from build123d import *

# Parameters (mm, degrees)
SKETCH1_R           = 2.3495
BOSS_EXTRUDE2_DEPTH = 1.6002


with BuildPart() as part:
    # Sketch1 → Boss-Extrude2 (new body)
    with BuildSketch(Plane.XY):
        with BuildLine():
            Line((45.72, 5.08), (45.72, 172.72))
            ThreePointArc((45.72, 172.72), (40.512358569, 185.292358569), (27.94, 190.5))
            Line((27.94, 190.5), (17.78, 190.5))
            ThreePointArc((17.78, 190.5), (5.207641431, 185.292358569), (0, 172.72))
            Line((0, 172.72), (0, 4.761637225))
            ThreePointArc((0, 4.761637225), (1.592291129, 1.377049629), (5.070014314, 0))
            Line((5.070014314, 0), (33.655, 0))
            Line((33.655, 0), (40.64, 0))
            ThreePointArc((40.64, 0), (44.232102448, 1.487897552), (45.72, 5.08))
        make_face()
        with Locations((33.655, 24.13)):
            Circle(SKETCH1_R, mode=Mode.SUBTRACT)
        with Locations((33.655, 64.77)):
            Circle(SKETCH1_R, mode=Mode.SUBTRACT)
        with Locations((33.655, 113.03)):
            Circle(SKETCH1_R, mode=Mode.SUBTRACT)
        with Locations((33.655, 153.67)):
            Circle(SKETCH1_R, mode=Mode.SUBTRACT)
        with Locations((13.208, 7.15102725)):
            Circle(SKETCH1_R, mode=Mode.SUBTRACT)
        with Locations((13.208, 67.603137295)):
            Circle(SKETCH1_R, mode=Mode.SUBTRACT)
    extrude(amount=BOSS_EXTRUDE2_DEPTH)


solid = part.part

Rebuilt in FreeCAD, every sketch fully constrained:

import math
import FreeCAD as App
import Part
import Sketcher
Q = App.Units.Quantity

doc = App.newDocument("Part")
body = doc.addObject("PartDesign::Body", "Body")

sketch1 = body.newObject("Sketcher::SketchObject", "Sketch")
sketch1.AttachmentSupport = (doc.getObject("XY_Plane"), [""])
sketch1.MapMode = "FlatFace"
sketch1.addGeometry([
    Part.LineSegment(App.Vector(45.7, 5.1, 0), App.Vector(45.7, 172.7, 0)),
    Part.ArcOfCircle(Part.Circle(App.Vector(27.9, 172.7, 0), App.Vector(0, 0, 1), 17.8), math.radians(0), math.radians(90)),
    Part.LineSegment(App.Vector(27.9, 190.5, 0), App.Vector(17.8, 190.5, 0)),
    Part.ArcOfCircle(Part.Circle(App.Vector(17.8, 172.7, 0), App.Vector(0, 0, 1), 17.8), math.radians(90), math.radians(180)),
    Part.LineSegment(App.Vector(0, 172.7, 0), App.Vector(0, 4.8, 0)),
    Part.ArcOfCircle(Part.Circle(App.Vector(5.1, 5.1, 0), App.Vector(0, 0, 1), 5.1), math.radians(-176), math.radians(-90)),
    Part.LineSegment(App.Vector(5.1, 0, 0), App.Vector(40.6, 0, 0)),
    Part.ArcOfCircle(Part.Circle(App.Vector(40.6, 5.1, 0), App.Vector(0, 0, 1), 5.1), math.radians(-90), math.radians(0)),
    Part.Circle(App.Vector(13.2, 7.2, 0), App.Vector(0, 0, 1), 2.3),
    Part.Circle(App.Vector(13.2, 67.6, 0), App.Vector(0, 0, 1), 2.3),
    Part.Circle(App.Vector(33.7, 24.1, 0), App.Vector(0, 0, 1), 2.3),
    Part.Circle(App.Vector(33.7, 64.8, 0), App.Vector(0, 0, 1), 2.3),
    Part.Circle(App.Vector(33.7, 113, 0), App.Vector(0, 0, 1), 2.3),
    Part.Circle(App.Vector(33.7, 153.7, 0), App.Vector(0, 0, 1), 2.3),
], False)
sketch1.addConstraint([
    Sketcher.Constraint("Tangent", 0, 2, 1, 1),
    Sketcher.Constraint("Tangent", 1, 2, 2, 1),
    Sketcher.Constraint("Tangent", 2, 2, 3, 1),
    Sketcher.Constraint("Tangent", 3, 2, 4, 1),
    Sketcher.Constraint("Coincident", 4, 2, 5, 1),
    Sketcher.Constraint("Tangent", 5, 2, 6, 1),
    Sketcher.Constraint("Tangent", 6, 2, 7, 1),
    Sketcher.Constraint("Tangent", 7, 2, 0, 1),
    Sketcher.Constraint("Vertical", 0),
    Sketcher.Constraint("Horizontal", 2),
    Sketcher.Constraint("Vertical", 4),
    Sketcher.Constraint("Horizontal", 6),
    Sketcher.Constraint("Equal", 1, 3),
    Sketcher.Constraint("Equal", 5, 7),
    Sketcher.Constraint("Equal", 8, 9),
    Sketcher.Constraint("Equal", 9, 10),
    Sketcher.Constraint("Equal", 10, 11),
    Sketcher.Constraint("Equal", 11, 12),
    Sketcher.Constraint("Equal", 12, 13),
    Sketcher.Constraint("PointOnObject", 3, 2, -2),
    Sketcher.Constraint("PointOnObject", 5, 2, -1),
    Sketcher.Constraint("Vertical", 8, 3, 9, 3),
    Sketcher.Constraint("Vertical", 10, 3, 11, 3),
    Sketcher.Constraint("Vertical", 11, 3, 12, 3),
    Sketcher.Constraint("Vertical", 12, 3, 13, 3),
    Sketcher.Constraint("Radius", 1, Q("0.7 in")),
    Sketcher.Constraint("Radius", 5, Q("0.2 in")),
    Sketcher.Constraint("Diameter", 8, Q("0.185 in")),
    Sketcher.Constraint("DistanceX", 2, 2, 2, 1, Q("0.4 in")),
    Sketcher.Constraint("DistanceY", 0, 1, 0, 2, Q("6.6 in")),
    Sketcher.Constraint("DistanceY", 10, 3, 11, 3, Q("1.6 in")),
    Sketcher.Constraint("DistanceY", 11, 3, 12, 3, Q("1.9 in")),
    Sketcher.Constraint("DistanceY", 12, 3, 13, 3, Q("1.6 in")),
    Sketcher.Constraint("DistanceX", -1, 1, 8, 3, Q("0.52 in")),
    Sketcher.Constraint("DistanceY", -1, 1, 10, 3, Q("0.95 in")),
    Sketcher.Constraint("DistanceX", -1, 1, 10, 3, Q("1.325 in")),
    Sketcher.Constraint("DistanceY", 4, 2, 9, 3, Q("62.8415 mm")),
    Sketcher.Constraint("DistanceX", 6, 1, 6, 2, Q("35.569986 mm")),
    Sketcher.Constraint("DistanceY", 8, 3, 9, 3, Q("60.45211 mm")),
])
pad1 = body.newObject("PartDesign::Pad", "Pad")
pad1.Profile = sketch1
pad1.Length = Q("0.063 in")

doc.recompute()
